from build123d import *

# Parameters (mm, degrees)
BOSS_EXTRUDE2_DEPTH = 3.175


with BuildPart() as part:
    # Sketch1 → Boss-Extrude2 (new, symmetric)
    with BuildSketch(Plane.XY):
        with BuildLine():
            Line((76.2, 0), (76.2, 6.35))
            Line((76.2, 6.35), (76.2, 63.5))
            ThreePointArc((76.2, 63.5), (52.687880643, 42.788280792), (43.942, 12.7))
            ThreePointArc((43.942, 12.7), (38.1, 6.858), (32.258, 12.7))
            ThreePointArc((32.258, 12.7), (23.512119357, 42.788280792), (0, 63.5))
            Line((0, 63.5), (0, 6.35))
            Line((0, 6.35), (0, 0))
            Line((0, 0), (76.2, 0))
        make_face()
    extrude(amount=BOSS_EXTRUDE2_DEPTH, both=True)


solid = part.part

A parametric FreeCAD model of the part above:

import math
import FreeCAD as App
import Part
import Sketcher
from FreeCAD import Vector
Q = App.Units.Quantity

doc = App.newDocument("Part")
body = doc.addObject("PartDesign::Body", "Body")

sketch1 = body.newObject("Sketcher::SketchObject", "Sketch")
sketch1.AttachmentSupport = (doc.getObject("XY_Plane"), [""])
sketch1.MapMode = "FlatFace"
sketch1.addGeometry(Part.LineSegment(Vector(76.2, 0, 0), Vector(76.2, 63.5, 0)), False)
sketch1.addGeometry(Part.ArcOfCircle(Part.Circle(Vector(100.071, 12.7, 0), Vector(0, 0, 1), 56.129), math.radians(115.168905), math.radians(180)), False)
sketch1.addGeometry(Part.ArcOfCircle(Part.Circle(Vector(38.1, 12.7, 0), Vector(0, 0, 1), 5.842), math.radians(180), math.radians(360)), False)
sketch1.addGeometry(Part.ArcOfCircle(Part.Circle(Vector(-23.871, 12.7, 0), Vector(0, 0, 1), 56.129), math.radians(0), math.radians(64.831095)), False)
sketch1.addGeometry(Part.LineSegment(Vector(0, 63.5, 0), Vector(0, 0, 0)), False)
sketch1.addGeometry(Part.LineSegment(Vector(0, 0, 0), Vector(76.2, 0, 0)), False)
sketch1.addConstraint(Sketcher.Constraint("Coincident", 0, 2, 1, 1))
sketch1.addConstraint(Sketcher.Constraint("Tangent", 1, 2, 2, 2))
sketch1.addConstraint(Sketcher.Constraint("Tangent", 2, 1, 3, 1))
sketch1.addConstraint(Sketcher.Constraint("Coincident", 3, 2, 4, 1))
sketch1.addConstraint(Sketcher.Constraint("Coincident", 4, 2, 5, 1))
sketch1.addConstraint(Sketcher.Constraint("Coincident", 5, 2, 0, 1))
sketch1.addConstraint(Sketcher.Constraint("Vertical", 0))
sketch1.addConstraint(Sketcher.Constraint("Vertical", 4))
sketch1.addConstraint(Sketcher.Constraint("Horizontal", 5))
sketch1.addConstraint(Sketcher.Constraint("Coincident", 4, 2, -1, 1))
sketch1.addConstraint(Sketcher.Constraint("Equal", 1, 3))
sketch1.addConstraint(Sketcher.Constraint("Horizontal", 1, 3, 2, 3))
sketch1.addConstraint(Sketcher.Constraint("Horizontal", 2, 3, 3, 3))
sketch1.addConstraint(Sketcher.Constraint("Horizontal", 0, 2, 3, 2))
sketch1.addConstraint(Sketcher.Constraint("DistanceX", 5, 1, 5, 2, Q("3 in")))
sketch1.addConstraint(Sketcher.Constraint("Radius", 2, Q("0.23 in")))
sketch1.addConstraint(Sketcher.Constraint("DistanceY", 0, 1, 0, 2, Q("2.5 in")))
sketch1.addConstraint(Sketcher.Constraint("DistanceY", 1, 3, 0, 2, Q("2 in")))
pad1 = body.newObject("PartDesign::Pad", "Pad")
pad1.Profile = sketch1
pad1.Length = Q("0.25 in")
pad1.Midplane = True

doc.recompute()
